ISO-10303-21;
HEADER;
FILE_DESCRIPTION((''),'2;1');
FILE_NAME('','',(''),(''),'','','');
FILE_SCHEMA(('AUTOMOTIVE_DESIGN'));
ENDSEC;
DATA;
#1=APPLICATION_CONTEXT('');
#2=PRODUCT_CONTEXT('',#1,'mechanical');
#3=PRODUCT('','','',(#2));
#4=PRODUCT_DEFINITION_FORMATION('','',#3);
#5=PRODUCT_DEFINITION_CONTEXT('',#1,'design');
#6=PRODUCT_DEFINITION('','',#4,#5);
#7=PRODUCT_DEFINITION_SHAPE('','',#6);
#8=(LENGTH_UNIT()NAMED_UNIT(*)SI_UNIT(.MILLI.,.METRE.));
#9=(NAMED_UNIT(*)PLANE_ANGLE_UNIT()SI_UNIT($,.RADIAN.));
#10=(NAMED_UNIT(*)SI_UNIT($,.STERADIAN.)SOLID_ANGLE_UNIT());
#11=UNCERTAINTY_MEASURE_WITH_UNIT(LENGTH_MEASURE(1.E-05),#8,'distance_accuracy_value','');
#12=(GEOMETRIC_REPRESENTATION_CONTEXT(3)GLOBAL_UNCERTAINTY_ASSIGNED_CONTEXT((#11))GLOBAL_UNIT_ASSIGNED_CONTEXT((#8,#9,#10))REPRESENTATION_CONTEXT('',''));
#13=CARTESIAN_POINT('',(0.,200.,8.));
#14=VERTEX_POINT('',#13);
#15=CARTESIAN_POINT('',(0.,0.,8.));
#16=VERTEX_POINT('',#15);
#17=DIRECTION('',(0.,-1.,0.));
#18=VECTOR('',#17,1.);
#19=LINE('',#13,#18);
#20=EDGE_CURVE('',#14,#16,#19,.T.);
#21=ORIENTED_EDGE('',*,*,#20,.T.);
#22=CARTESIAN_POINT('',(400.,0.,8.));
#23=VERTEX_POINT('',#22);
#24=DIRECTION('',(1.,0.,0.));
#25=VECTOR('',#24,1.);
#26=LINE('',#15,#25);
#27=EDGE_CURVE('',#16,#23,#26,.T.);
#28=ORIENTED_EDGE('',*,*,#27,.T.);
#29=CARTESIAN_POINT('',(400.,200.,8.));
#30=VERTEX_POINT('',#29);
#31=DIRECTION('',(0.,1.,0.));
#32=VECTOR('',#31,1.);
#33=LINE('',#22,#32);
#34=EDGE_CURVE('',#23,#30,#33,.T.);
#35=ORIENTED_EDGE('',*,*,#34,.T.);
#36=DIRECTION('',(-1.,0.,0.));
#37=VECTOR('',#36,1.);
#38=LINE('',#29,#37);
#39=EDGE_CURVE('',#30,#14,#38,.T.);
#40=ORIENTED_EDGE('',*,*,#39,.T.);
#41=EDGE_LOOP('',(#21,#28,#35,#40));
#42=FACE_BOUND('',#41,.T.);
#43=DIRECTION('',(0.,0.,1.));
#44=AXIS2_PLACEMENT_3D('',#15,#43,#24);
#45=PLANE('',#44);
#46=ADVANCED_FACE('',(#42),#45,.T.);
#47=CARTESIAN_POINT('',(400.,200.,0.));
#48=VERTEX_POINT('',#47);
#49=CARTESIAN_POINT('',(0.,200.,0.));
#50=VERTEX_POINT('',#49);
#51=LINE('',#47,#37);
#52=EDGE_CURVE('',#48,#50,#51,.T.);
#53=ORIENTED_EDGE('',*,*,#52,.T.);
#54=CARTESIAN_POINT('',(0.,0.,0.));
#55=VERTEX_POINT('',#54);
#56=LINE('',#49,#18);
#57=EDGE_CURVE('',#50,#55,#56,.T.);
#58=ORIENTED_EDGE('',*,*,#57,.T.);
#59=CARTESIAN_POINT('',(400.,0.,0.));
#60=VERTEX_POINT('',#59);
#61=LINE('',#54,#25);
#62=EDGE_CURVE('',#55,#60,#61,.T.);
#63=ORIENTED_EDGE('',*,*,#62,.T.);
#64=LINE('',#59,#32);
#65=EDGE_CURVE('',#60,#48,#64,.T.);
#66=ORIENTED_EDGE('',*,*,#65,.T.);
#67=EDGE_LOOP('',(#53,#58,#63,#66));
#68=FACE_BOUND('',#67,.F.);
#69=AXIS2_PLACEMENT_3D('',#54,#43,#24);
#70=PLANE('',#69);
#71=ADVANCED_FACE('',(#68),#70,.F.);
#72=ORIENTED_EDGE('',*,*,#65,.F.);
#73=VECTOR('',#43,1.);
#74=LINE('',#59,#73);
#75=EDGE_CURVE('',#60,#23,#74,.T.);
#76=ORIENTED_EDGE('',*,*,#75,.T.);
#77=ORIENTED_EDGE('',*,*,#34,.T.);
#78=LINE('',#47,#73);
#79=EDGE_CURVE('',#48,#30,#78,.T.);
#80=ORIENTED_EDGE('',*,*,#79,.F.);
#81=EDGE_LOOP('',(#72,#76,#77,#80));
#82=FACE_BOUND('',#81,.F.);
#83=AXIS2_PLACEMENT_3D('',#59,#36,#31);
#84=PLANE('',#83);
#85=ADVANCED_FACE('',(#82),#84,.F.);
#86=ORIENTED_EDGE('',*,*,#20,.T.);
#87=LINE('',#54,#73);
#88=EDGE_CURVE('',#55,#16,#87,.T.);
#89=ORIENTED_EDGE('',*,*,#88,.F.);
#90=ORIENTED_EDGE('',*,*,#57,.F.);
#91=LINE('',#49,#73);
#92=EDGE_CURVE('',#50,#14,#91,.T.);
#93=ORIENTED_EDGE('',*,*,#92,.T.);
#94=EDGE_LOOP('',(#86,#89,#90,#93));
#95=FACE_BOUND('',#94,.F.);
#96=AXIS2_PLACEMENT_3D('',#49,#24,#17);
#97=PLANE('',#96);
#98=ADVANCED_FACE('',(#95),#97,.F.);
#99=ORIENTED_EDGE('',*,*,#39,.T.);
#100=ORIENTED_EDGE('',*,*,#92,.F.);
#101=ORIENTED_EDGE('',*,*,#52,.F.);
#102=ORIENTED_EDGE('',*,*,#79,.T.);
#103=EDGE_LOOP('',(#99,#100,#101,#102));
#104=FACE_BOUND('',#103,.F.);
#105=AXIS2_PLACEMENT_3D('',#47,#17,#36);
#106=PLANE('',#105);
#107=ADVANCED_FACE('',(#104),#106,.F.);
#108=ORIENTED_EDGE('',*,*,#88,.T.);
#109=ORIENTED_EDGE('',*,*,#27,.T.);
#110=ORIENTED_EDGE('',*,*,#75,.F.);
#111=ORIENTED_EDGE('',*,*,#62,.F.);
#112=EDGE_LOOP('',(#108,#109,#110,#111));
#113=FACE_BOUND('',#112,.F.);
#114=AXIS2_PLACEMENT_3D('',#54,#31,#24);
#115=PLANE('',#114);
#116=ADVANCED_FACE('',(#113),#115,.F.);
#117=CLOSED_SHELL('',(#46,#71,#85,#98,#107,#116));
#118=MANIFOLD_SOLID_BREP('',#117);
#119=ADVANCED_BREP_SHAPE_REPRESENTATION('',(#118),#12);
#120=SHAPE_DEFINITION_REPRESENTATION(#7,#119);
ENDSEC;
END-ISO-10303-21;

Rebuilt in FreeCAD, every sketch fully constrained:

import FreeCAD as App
import Part
import Sketcher
from FreeCAD import Vector
Q = App.Units.Quantity

doc = App.newDocument("Part")
body = doc.addObject("PartDesign::Body", "Body")

# Sketch on XY plane
sketch1 = doc.addObject("Sketcher::SketchObject", "Sketch")
body.addObject(sketch1)
sketch1.AttachmentSupport = (doc.XY_Plane, [""])
sketch1.MapMode = "FlatFace"
sketch1.addGeometry(Part.LineSegment(Vector(0, 200, 0), Vector(0, 0, 0)), False)
sketch1.addGeometry(Part.LineSegment(Vector(0, 0, 0), Vector(400, 0, 0)), False)
sketch1.addGeometry(Part.LineSegment(Vector(400, 0, 0), Vector(400, 200, 0)), False)
sketch1.addGeometry(Part.LineSegment(Vector(400, 200, 0), Vector(0, 200, 0)), False)
sketch1.addConstraint(Sketcher.Constraint("Coincident", 0, 2, 1, 1))
sketch1.addConstraint(Sketcher.Constraint("Coincident", 1, 2, 2, 1))
sketch1.addConstraint(Sketcher.Constraint("Coincident", 2, 2, 3, 1))
sketch1.addConstraint(Sketcher.Constraint("Coincident", 3, 2, 0, 1))
sketch1.addConstraint(Sketcher.Constraint("Vertical", 0))
sketch1.addConstraint(Sketcher.Constraint("Horizontal", 1))
sketch1.addConstraint(Sketcher.Constraint("Vertical", 2))
sketch1.addConstraint(Sketcher.Constraint("Horizontal", 3))
sketch1.addConstraint(Sketcher.Constraint("Coincident", 0, 2, -1, 1))
sketch1.addConstraint(Sketcher.Constraint("DistanceX", 1, 1, 1, 2, Q("400 mm")))
sketch1.addConstraint(Sketcher.Constraint("DistanceY", 0, 2, 0, 1, Q("200 mm")))
pad1 = doc.addObject("PartDesign::Pad", "Pad")
body.addObject(pad1)
pad1.Profile = sketch1
pad1.Length = 8

doc.recompute()
